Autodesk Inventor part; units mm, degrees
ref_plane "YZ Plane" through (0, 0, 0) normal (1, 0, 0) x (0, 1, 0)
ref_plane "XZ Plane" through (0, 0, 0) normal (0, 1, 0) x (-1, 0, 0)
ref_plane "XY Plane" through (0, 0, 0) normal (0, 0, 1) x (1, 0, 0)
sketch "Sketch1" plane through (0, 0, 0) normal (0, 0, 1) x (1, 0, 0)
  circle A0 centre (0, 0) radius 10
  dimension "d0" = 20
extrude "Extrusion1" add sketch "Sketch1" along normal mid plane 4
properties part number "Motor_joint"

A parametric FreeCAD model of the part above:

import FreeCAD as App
import Part
import Sketcher
Q = App.Units.Quantity

doc = App.newDocument("Part")
body = doc.addObject("PartDesign::Body", "Body")

# Sketch on XY plane
sketch1 = doc.addObject("Sketcher::SketchObject", "Sketch")
body.addObject(sketch1)
sketch1.AttachmentSupport = (doc.XY_Plane, [""])
sketch1.MapMode = "FlatFace"
sketch1.addGeometry(Part.Circle(App.Vector(0, 0, 0), App.Vector(0, 0, 1), 10), False)
sketch1.addConstraint(Sketcher.Constraint("Coincident", 0, 3, -1, 1))
sketch1.addConstraint(Sketcher.Constraint("Diameter", 0, Q("20 mm")))
pad1 = doc.addObject("PartDesign::Pad", "Pad")
body.addObject(pad1)
pad1.Profile = sketch1
pad1.Length = 4
pad1.Midplane = True

doc.recompute()
